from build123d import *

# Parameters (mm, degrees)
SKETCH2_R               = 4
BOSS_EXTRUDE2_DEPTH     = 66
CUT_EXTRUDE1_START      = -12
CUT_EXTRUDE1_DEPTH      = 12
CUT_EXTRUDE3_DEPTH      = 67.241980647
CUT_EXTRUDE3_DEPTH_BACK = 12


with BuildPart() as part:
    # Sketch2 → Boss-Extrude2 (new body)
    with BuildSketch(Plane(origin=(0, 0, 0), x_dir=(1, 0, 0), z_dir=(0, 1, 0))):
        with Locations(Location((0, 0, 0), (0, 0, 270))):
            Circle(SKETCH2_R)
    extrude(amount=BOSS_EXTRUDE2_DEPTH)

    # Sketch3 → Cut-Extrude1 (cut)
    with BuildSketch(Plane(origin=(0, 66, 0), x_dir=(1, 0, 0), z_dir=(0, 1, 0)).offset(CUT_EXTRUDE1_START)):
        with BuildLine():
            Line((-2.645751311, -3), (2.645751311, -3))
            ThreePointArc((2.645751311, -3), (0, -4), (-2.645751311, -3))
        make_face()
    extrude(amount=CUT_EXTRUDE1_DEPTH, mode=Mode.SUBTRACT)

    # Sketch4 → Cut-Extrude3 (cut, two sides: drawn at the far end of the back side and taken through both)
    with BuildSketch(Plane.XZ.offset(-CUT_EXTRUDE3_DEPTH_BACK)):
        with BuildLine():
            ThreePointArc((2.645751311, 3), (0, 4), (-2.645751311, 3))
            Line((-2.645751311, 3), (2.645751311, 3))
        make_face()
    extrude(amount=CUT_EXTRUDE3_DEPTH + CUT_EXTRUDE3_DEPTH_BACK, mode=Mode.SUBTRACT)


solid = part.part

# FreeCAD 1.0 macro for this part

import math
import FreeCAD as App
import Part
import Sketcher

doc = App.newDocument("Part")
body = doc.addObject("PartDesign::Body", "Body")

sketch1 = body.newObject("Sketcher::SketchObject", "Sketch")
sketch1.AttachmentSupport = (doc.getObject("XZ_Plane"), [""])
sketch1.MapMode = "FlatFace"
sketch1.addGeometry(Part.Circle(App.Vector(0, 0, 0), App.Vector(0, 0, 1), 4), False)
sketch1.addConstraint(Sketcher.Constraint("Coincident", 0, 3, -1, 1))
sketch1.addConstraint(Sketcher.Constraint("Diameter", 0, 8.0))
pad1 = body.newObject("PartDesign::Pad", "Pad")
pad1.Profile = sketch1
pad1.Length = 66
pad1.Reversed = True

sketch2 = body.newObject("Sketcher::SketchObject", "Sketch001")
sketch2.AttachmentSupport = (doc.getObject("XZ_Plane"), [""])
sketch2.MapMode = "FlatFace"
sketch2.AttachmentOffset = App.Placement(App.Vector(0, 0, -54), App.Rotation())
sketch2.addGeometry(Part.LineSegment(App.Vector(2.6, 3, 0), App.Vector(-2.6, 3, 0)), False)
sketch2.addGeometry(Part.ArcOfCircle(Part.Circle(App.Vector(0, 0, 0), App.Vector(0, 0, 1), 4), math.radians(49), math.radians(131)), False)
sketch2.addConstraint(Sketcher.Constraint("Coincident", 0, 1, 1, 1))
sketch2.addConstraint(Sketcher.Constraint("Coincident", 1, 2, 0, 2))
sketch2.addConstraint(Sketcher.Constraint("Horizontal", 0))
sketch2.addConstraint(Sketcher.Constraint("Coincident", 1, 3, -1, 1))
sketch2.addConstraint(Sketcher.Constraint("Radius", 1, 4.0))
sketch2.addConstraint(Sketcher.Constraint("DistanceY", -1, 1, 0, 1, 3.0))
pocket1 = body.newObject("PartDesign::Pocket", "Pocket")
pocket1.Profile = sketch2
pocket1.Length = 12

sketch3 = body.newObject("Sketcher::SketchObject", "Sketch002")
sketch3.AttachmentSupport = (doc.getObject("XZ_Plane"), [""])
sketch3.MapMode = "FlatFace"
sketch3.addGeometry(Part.ArcOfCircle(Part.Circle(App.Vector(0, 0, 0), App.Vector(0, 0, 1), 4), math.radians(49), math.radians(131)), False)
sketch3.addGeometry(Part.LineSegment(App.Vector(-2.6, 3, 0), App.Vector(2.6, 3, 0)), False)
sketch3.addConstraint(Sketcher.Constraint("Coincident", 0, 1, 1, 2))
sketch3.addConstraint(Sketcher.Constraint("Coincident", 1, 1, 0, 2))
sketch3.addConstraint(Sketcher.Constraint("Horizontal", 1))
sketch3.addConstraint(Sketcher.Constraint("Coincident", 0, 3, -1, 1))
sketch3.addConstraint(Sketcher.Constraint("Radius", 0, 4.0))
sketch3.addConstraint(Sketcher.Constraint("DistanceY", -1, 1, 0, 1, 3.0))
pocket2 = body.newObject("PartDesign::Pocket", "Pocket001")
pocket2.Profile = sketch3
pocket2.Type = "TwoLengths"
pocket2.Length = 67.241981
pocket2.Length2 = 12
pocket2.Reversed = True

doc.recompute()
